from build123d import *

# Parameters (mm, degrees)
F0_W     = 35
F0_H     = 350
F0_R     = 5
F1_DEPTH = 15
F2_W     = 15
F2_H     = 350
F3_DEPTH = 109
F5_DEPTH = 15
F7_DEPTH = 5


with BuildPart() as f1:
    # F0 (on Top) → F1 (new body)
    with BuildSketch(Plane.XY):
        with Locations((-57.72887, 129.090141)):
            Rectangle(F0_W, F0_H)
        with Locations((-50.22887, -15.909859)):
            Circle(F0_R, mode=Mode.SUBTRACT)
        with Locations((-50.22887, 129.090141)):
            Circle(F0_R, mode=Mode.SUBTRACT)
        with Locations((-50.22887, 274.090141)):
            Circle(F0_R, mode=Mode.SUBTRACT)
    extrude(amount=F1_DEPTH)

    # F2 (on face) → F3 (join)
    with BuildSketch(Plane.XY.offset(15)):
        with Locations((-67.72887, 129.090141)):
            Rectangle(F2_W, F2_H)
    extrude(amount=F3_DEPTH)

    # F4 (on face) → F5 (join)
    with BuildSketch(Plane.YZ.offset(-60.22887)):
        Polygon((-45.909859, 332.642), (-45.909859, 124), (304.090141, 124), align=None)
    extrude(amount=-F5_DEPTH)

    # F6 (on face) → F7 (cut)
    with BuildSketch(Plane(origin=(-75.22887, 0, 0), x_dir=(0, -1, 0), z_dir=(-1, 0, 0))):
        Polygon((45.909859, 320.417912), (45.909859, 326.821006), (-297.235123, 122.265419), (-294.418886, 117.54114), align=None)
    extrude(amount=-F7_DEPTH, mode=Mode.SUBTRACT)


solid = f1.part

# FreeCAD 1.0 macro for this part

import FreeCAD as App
import Part
import Sketcher

V = App.Vector
Q = App.Units.Quantity

doc = App.newDocument("Part")
body = doc.addObject("PartDesign::Body", "Body")

# Sketch on XY plane
sketch1 = doc.addObject("Sketcher::SketchObject", "Sketch")
body.addObject(sketch1)
sketch1.AttachmentSupport = (doc.XY_Plane, [""])
sketch1.MapMode = "FlatFace"
sketch1.addGeometry([
    Part.LineSegment(V(-75, 304, 0), V(-75, -46, 0)),  # 0
    Part.LineSegment(V(-75, -46, 0), V(-40, -46, 0)),  # 1
    Part.LineSegment(V(-40, -46, 0), V(-40, 304, 0)),  # 2
    Part.LineSegment(V(-40, 304, 0), V(-75, 304, 0)),  # 3
    Part.Circle(V(-50, -16, 0), V(0, 0, 1), 5),  # 4
    Part.Circle(V(-50, 129, 0), V(0, 0, 1), 5),  # 5
    Part.Circle(V(-50, 274, 0), V(0, 0, 1), 5),  # 6
], False)
sketch1.addConstraint([
    Sketcher.Constraint("Coincident", 0, 2, 1, 1),
    Sketcher.Constraint("Coincident", 1, 2, 2, 1),
    Sketcher.Constraint("Coincident", 2, 2, 3, 1),
    Sketcher.Constraint("Coincident", 3, 2, 0, 1),
    Sketcher.Constraint("Vertical", 0),
    Sketcher.Constraint("Horizontal", 1),
    Sketcher.Constraint("Vertical", 2),
    Sketcher.Constraint("Horizontal", 3),
    Sketcher.Constraint("Equal", 4, 5),
    Sketcher.Constraint("Equal", 5, 6),
    Sketcher.Constraint("Vertical", 4, 3, 5, 3),
    Sketcher.Constraint("Vertical", 5, 3, 6, 3),
    Sketcher.Constraint("Diameter", 4, Q("10 mm")),
    Sketcher.Constraint("DistanceX", 1, 1, 1, 2, Q("35 mm")),
    Sketcher.Constraint("DistanceY", 0, 2, 0, 1, Q("350 mm")),
    Sketcher.Constraint("DistanceY", 4, 3, 5, 3, Q("145 mm")),
    Sketcher.Constraint("DistanceY", 5, 3, 6, 3, Q("145 mm")),
    Sketcher.Constraint("DistanceX", 0, 2, 4, 3, Q("25 mm")),
    Sketcher.Constraint("DistanceY", 0, 2, 4, 3, Q("30 mm")),
    Sketcher.Constraint("DistanceX", 4, 3, -1, 1, Q("50.22887 mm")),
    Sketcher.Constraint("DistanceY", 4, 3, -1, 1, Q("15.909859 mm")),
])
pad1 = doc.addObject("PartDesign::Pad", "Pad")
body.addObject(pad1)
pad1.Profile = sketch1
pad1.Length = 15

# Sketch on XY plane
sketch2 = doc.addObject("Sketcher::SketchObject", "Sketch001")
body.addObject(sketch2)
sketch2.AttachmentSupport = (doc.XY_Plane, [""])
sketch2.MapMode = "FlatFace"
sketch2.AttachmentOffset = App.Placement(V(0, 0, 15), App.Rotation())
sketch2.addGeometry([
    Part.LineSegment(V(-75, 304, 0), V(-75, -46, 0)),
    Part.LineSegment(V(-75, -46, 0), V(-60, -46, 0)),
    Part.LineSegment(V(-60, -46, 0), V(-60, 304, 0)),
    Part.LineSegment(V(-60, 304, 0), V(-75, 304, 0)),
], False)
sketch2.addConstraint([
    Sketcher.Constraint("Coincident", 0, 2, 1, 1),
    Sketcher.Constraint("Coincident", 1, 2, 2, 1),
    Sketcher.Constraint("Coincident", 2, 2, 3, 1),
    Sketcher.Constraint("Coincident", 3, 2, 0, 1),
    Sketcher.Constraint("Vertical", 0),
    Sketcher.Constraint("Horizontal", 1),
    Sketcher.Constraint("Vertical", 2),
    Sketcher.Constraint("Horizontal", 3),
    Sketcher.Constraint("DistanceX", 1, 1, 1, 2, Q("15 mm")),
    Sketcher.Constraint("DistanceY", 0, 2, 0, 1, Q("350 mm")),
    Sketcher.Constraint("DistanceX", 0, 2, -1, 1, Q("75.22887 mm")),
    Sketcher.Constraint("DistanceY", 0, 2, -1, 1, Q("45.909859 mm")),
])
pad2 = doc.addObject("PartDesign::Pad", "Pad001")
body.addObject(pad2)
pad2.Profile = sketch2
pad2.Length = 109

# Sketch on YZ plane
sketch3 = doc.addObject("Sketcher::SketchObject", "Sketch002")
body.addObject(sketch3)
sketch3.AttachmentSupport = (doc.YZ_Plane, [""])
sketch3.MapMode = "FlatFace"
sketch3.AttachmentOffset = App.Placement(V(0, 0, -60.22887), App.Rotation())
sketch3.addGeometry([
    Part.LineSegment(V(-46, 333, 0), V(-46, 124, 0)),
    Part.LineSegment(V(-46, 124, 0), V(304, 124, 0)),
    Part.LineSegment(V(304, 124, 0), V(-46, 333, 0)),
], False)
sketch3.addConstraint([
    Sketcher.Constraint("Coincident", 0, 2, 1, 1),
    Sketcher.Constraint("Coincident", 1, 2, 2, 1),
    Sketcher.Constraint("Coincident", 2, 2, 0, 1),
    Sketcher.Constraint("Vertical", 0),
    Sketcher.Constraint("Horizontal", 1),
    Sketcher.Constraint("DistanceX", 1, 1, 1, 2, Q("350 mm")),
    Sketcher.Constraint("DistanceY", -1, 1, 0, 2, Q("124 mm")),
    Sketcher.Constraint("Angle", 2, Q("149.199985 deg")),
    Sketcher.Constraint("DistanceX", 0, 2, -1, 1, Q("45.909859 mm")),
])
pad3 = doc.addObject("PartDesign::Pad", "Pad002")
body.addObject(pad3)
pad3.Profile = sketch3
pad3.Length = 15
pad3.Reversed = True

# Sketch on YZ plane
sketch4 = doc.addObject("Sketcher::SketchObject", "Sketch003")
body.addObject(sketch4)
sketch4.AttachmentSupport = (doc.YZ_Plane, [""])
sketch4.MapMode = "FlatFace"
sketch4.AttachmentOffset = App.Placement(V(0, 0, -75.22887), App.Rotation())
sketch4.addGeometry([
    Part.LineSegment(V(-46, 320, 0), V(-46, 327, 0)),
    Part.LineSegment(V(-46, 327, 0), V(297, 122, 0)),
    Part.LineSegment(V(297, 122, 0), V(294, 118, 0)),
    Part.LineSegment(V(294, 118, 0), V(-46, 320, 0)),
], False)
sketch4.addConstraint([
    Sketcher.Constraint("Coincident", 0, 2, 1, 1),
    Sketcher.Constraint("Coincident", 1, 2, 2, 1),
    Sketcher.Constraint("Coincident", 2, 2, 3, 1),
    Sketcher.Constraint("Coincident", 3, 2, 0, 1),
    Sketcher.Constraint("Vertical", 0),
    Sketcher.Constraint("Perpendicular", 1, 2),
    Sketcher.Constraint("Perpendicular", 2, 3),
    Sketcher.Constraint("Angle", 1, Q("-30.800015 deg")),
    Sketcher.Constraint("Distance", 2, Q("5.5 mm")),
    Sketcher.Constraint("DistanceX", 0, 2, -1, 1, Q("45.909859 mm")),
    Sketcher.Constraint("DistanceY", -1, 1, 1, 2, Q("122.265419 mm")),
    Sketcher.Constraint("DistanceY", -1, 1, 3, 2, Q("320.417912 mm")),
])
pocket1 = doc.addObject("PartDesign::Pocket", "Pocket")
body.addObject(pocket1)
pocket1.Profile = sketch4
pocket1.Length = 5
pocket1.Reversed = True

doc.recompute()
